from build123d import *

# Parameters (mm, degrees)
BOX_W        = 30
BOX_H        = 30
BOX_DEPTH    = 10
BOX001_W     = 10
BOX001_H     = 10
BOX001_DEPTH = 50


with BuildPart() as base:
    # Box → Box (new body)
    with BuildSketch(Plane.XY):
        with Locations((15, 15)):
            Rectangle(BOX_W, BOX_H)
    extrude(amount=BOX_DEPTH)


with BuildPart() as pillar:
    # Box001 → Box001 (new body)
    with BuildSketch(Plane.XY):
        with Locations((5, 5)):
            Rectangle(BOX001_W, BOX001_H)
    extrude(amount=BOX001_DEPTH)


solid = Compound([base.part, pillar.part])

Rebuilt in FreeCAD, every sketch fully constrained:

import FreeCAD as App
import Part
import Sketcher
Q = App.Units.Quantity


def add_polygon(sketch, points):
    """Adds a closed chain of lines whose ends are joined by coincident constraints."""
    first, n = sketch.GeometryCount, len(points)
    for a, b in zip(points, points[1:] + points[:1]):
        sketch.addGeometry(Part.LineSegment(App.Vector(*a, 0), App.Vector(*b, 0)), False)
    for i in range(n):
        sketch.addConstraint(Sketcher.Constraint("Coincident", first + i, 2, first + (i + 1) % n, 1))

doc = App.newDocument("Part")
params = doc.addObject("Spreadsheet::Sheet", "Params")
for row, (alias, value) in enumerate([
    ("sketch1_width", "30 mm"),
    ("pad1_length", "10 mm"),
    ("sketch2_width", "10 mm"),
    ("pad2_length", "50 mm"),
], start=1):
    params.set(f"A{row}", alias)
    params.set(f"B{row}", "=" + value)
    params.setAlias(f"B{row}", alias)

body = doc.addObject("PartDesign::Body", "Body")

# Sketch on XY plane
sketch1 = doc.addObject("Sketcher::SketchObject", "Sketch")
body.addObject(sketch1)
sketch1.AttachmentSupport = (doc.XY_Plane, [""])
sketch1.MapMode = "FlatFace"
add_polygon(sketch1, [(0, 30), (0, 0), (30, 0), (30, 30)])  # lines 0-3
sketch1.addConstraint([
    Sketcher.Constraint("Vertical", 0),
    Sketcher.Constraint("Horizontal", 1),
    Sketcher.Constraint("Vertical", 2),
    Sketcher.Constraint("Horizontal", 3),
    Sketcher.Constraint("Coincident", 0, 2, -1, 1),
    Sketcher.Constraint("Equal", 3, 0),
    Sketcher.Constraint("DistanceX", 1, 1, 1, 2, Q("30 mm")),
])
sketch1.setExpression("Constraints[10]", "Params.sketch1_width")
pad1 = doc.addObject("PartDesign::Pad", "Pad")
body.addObject(pad1)
pad1.Profile = sketch1
pad1.setExpression("Length", "Params.pad1_length")
body2 = doc.addObject("PartDesign::Body", "Body001")

# Sketch on XY plane
sketch2 = doc.addObject("Sketcher::SketchObject", "Sketch001")
body2.addObject(sketch2)
sketch2.AttachmentSupport = (doc.getObject("XY_Plane001"), [""])
sketch2.MapMode = "FlatFace"
add_polygon(sketch2, [(0, 10), (0, 0), (10, 0), (10, 10)])  # lines 0-3
sketch2.addConstraint([
    Sketcher.Constraint("Vertical", 0),
    Sketcher.Constraint("Horizontal", 1),
    Sketcher.Constraint("Vertical", 2),
    Sketcher.Constraint("Horizontal", 3),
    Sketcher.Constraint("Coincident", 0, 2, -1, 1),
    Sketcher.Constraint("Equal", 3, 0),
    Sketcher.Constraint("DistanceX", 1, 1, 1, 2, Q("10 mm")),
])
sketch2.setExpression("Constraints[10]", "Params.sketch2_width")
pad2 = doc.addObject("PartDesign::Pad", "Pad001")
body2.addObject(pad2)
pad2.Profile = sketch2
pad2.setExpression("Length", "Params.pad2_length")

doc.recompute()
